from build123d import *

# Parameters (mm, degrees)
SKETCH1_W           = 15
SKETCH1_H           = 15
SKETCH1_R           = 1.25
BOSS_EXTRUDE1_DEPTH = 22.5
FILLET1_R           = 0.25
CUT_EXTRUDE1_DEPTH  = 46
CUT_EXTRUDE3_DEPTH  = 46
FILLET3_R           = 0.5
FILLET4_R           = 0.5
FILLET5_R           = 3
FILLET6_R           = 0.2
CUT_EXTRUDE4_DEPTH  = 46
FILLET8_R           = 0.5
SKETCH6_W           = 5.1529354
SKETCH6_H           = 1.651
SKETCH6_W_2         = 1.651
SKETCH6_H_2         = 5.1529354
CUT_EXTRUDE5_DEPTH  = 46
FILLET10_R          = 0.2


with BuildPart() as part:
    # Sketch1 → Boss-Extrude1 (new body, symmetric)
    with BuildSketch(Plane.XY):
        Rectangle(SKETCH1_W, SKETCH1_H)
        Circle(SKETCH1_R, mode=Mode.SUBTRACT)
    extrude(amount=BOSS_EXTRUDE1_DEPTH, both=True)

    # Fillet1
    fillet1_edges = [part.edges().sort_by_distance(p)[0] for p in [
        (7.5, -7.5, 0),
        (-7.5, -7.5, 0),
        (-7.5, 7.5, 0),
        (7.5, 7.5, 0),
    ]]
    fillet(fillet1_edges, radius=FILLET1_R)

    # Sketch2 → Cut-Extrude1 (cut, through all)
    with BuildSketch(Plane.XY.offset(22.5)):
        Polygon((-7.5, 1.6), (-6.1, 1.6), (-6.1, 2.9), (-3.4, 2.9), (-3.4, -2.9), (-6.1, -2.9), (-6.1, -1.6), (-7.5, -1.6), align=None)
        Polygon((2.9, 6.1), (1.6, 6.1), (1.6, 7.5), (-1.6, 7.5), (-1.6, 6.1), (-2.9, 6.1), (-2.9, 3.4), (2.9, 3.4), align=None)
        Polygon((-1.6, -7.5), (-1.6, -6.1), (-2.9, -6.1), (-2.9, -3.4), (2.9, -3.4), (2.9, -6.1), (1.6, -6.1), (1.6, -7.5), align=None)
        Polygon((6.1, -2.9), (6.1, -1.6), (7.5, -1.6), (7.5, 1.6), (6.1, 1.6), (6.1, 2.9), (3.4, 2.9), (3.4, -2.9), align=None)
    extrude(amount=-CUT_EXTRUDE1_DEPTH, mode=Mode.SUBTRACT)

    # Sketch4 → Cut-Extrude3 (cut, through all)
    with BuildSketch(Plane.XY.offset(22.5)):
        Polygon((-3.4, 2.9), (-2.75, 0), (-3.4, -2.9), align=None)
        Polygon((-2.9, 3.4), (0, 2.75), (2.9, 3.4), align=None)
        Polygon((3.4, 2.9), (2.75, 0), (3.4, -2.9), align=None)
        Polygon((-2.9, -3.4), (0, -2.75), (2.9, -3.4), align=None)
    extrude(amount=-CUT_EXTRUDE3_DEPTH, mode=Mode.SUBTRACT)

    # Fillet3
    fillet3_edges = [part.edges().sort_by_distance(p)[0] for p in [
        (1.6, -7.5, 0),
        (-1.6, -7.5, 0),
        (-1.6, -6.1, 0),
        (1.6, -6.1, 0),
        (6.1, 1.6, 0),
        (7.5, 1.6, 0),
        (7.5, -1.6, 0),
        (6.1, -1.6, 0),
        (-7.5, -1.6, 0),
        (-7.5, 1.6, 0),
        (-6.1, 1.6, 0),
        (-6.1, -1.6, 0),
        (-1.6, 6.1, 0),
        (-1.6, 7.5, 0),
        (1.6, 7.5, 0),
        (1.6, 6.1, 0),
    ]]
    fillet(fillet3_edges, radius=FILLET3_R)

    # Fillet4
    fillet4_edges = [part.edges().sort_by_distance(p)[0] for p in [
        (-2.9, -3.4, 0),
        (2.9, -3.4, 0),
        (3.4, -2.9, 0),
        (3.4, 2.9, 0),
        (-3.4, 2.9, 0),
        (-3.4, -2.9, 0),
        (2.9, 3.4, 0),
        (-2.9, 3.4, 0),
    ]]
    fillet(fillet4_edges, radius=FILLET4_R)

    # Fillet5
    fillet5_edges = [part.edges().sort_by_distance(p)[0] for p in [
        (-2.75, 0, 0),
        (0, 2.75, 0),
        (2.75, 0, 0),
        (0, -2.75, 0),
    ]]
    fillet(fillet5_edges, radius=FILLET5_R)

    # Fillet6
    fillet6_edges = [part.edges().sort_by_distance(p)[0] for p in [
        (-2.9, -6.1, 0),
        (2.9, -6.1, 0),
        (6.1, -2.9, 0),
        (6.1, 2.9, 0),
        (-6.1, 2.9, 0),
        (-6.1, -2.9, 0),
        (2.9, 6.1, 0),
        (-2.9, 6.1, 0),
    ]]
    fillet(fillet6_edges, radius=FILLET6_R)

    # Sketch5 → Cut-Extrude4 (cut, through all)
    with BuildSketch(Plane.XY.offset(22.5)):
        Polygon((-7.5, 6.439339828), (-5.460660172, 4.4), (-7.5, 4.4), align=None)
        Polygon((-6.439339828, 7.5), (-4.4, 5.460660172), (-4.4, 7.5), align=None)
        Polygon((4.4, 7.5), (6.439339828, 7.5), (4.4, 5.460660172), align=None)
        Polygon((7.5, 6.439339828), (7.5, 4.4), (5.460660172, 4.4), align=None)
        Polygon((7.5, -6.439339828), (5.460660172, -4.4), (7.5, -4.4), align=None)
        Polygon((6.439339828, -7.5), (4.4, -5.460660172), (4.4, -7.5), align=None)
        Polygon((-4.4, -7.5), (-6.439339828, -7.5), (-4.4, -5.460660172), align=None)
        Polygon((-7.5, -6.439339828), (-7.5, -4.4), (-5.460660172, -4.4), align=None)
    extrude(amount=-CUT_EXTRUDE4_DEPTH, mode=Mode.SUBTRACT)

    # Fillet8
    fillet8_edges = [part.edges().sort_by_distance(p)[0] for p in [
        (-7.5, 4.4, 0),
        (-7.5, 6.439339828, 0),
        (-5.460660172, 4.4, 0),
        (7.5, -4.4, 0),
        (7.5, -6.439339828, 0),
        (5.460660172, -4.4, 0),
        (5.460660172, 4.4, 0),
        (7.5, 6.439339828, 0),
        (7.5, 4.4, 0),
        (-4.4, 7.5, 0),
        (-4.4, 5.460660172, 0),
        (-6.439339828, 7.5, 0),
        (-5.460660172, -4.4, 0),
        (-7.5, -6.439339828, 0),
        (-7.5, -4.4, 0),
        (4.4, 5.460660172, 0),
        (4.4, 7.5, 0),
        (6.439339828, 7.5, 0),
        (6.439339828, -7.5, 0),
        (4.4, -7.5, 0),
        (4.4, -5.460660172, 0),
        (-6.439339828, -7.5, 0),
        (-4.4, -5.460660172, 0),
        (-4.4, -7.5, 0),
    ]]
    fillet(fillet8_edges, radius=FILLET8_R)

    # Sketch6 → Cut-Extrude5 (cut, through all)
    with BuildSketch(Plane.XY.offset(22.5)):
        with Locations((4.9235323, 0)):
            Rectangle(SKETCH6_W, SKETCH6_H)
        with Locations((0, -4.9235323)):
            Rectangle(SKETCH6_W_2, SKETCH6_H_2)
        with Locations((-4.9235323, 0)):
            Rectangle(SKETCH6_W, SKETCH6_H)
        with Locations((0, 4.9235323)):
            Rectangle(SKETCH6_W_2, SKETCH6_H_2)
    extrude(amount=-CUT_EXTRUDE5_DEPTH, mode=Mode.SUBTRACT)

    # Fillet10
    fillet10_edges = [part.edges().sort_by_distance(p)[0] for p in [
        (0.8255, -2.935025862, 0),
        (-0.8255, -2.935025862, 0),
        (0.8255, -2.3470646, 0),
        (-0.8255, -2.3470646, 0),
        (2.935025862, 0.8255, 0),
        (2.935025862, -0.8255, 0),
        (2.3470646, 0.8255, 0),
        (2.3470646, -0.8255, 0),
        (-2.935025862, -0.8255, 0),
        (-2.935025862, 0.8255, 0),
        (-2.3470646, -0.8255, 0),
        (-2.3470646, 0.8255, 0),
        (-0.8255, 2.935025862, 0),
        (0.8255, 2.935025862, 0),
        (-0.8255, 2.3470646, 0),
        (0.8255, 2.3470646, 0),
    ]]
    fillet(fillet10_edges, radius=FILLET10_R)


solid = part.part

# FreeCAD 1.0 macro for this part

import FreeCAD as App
import Part
import Sketcher
from FreeCAD import Vector


def edges_at(feature, points):
    """Names of the edges that pass closest to the given points."""
    edges = feature.Shape.Edges
    near = lambda p: min(range(len(edges)), key=lambda i: edges[i].distToShape(Part.Vertex(*p))[0])
    return sorted({f"Edge{near(p) + 1}" for p in points})

doc = App.newDocument("Part")
body = doc.addObject("PartDesign::Body", "Body")

sketch1 = body.newObject("Sketcher::SketchObject", "Sketch")
sketch1.AttachmentSupport = (doc.getObject("XY_Plane"), [""])
sketch1.MapMode = "FlatFace"
sketch1.addGeometry(Part.LineSegment(Vector(-7.5, 7.5, 0), Vector(-7.5, -7.5, 0)), False)
sketch1.addGeometry(Part.LineSegment(Vector(-7.5, -7.5, 0), Vector(7.5, -7.5, 0)), False)
sketch1.addGeometry(Part.LineSegment(Vector(7.5, -7.5, 0), Vector(7.5, 7.5, 0)), False)
sketch1.addGeometry(Part.LineSegment(Vector(7.5, 7.5, 0), Vector(-7.5, 7.5, 0)), False)
sketch1.addGeometry(Part.Circle(Vector(0, 0, 0), Vector(0, 0, 1), 1.2), False)
sketch1.addConstraint(Sketcher.Constraint("Coincident", 0, 2, 1, 1))
sketch1.addConstraint(Sketcher.Constraint("Coincident", 1, 2, 2, 1))
sketch1.addConstraint(Sketcher.Constraint("Coincident", 2, 2, 3, 1))
sketch1.addConstraint(Sketcher.Constraint("Coincident", 3, 2, 0, 1))
sketch1.addConstraint(Sketcher.Constraint("Vertical", 0))
sketch1.addConstraint(Sketcher.Constraint("Horizontal", 1))
sketch1.addConstraint(Sketcher.Constraint("Vertical", 2))
sketch1.addConstraint(Sketcher.Constraint("Horizontal", 3))
sketch1.addConstraint(Sketcher.Constraint("Coincident", 4, 3, -1, 1))
sketch1.addConstraint(Sketcher.Constraint("Symmetric", 0, 2, 2, 2, -1, 1))
sketch1.addConstraint(Sketcher.Constraint("Equal", 3, 0))
sketch1.addConstraint(Sketcher.Constraint("Diameter", 4, 2.5))
sketch1.addConstraint(Sketcher.Constraint("DistanceX", 1, 1, 1, 2, 15.0))
pad1 = body.newObject("PartDesign::Pad", "Pad")
pad1.Profile = sketch1
pad1.Length = 45
pad1.Midplane = True
doc.recompute()

fillet = body.newObject("PartDesign::Fillet", "Fillet")
fillet.Base = (pad1, edges_at(pad1, [
    (7.5, -7.5, 0),
    (-7.5, -7.5, 0),
    (-7.5, 7.5, 0),
    (7.5, 7.5, 0),
]))
fillet.Radius = 0.25

sketch2 = body.newObject("Sketcher::SketchObject", "Sketch001")
sketch2.AttachmentSupport = (doc.getObject("XY_Plane"), [""])
sketch2.MapMode = "FlatFace"
sketch2.AttachmentOffset = App.Placement(Vector(0, 0, 22.5), App.Rotation())
sketch2.addGeometry(Part.LineSegment(Vector(-6.1, 1.6, 0), Vector(-7.5, 1.6, 0)), False)
sketch2.addGeometry(Part.LineSegment(Vector(-7.5, 1.6, 0), Vector(-7.5, -1.6, 0)), False)
sketch2.addGeometry(Part.LineSegment(Vector(-7.5, -1.6, 0), Vector(-6.1, -1.6, 0)), False)
sketch2.addGeometry(Part.LineSegment(Vector(-6.1, -1.6, 0), Vector(-6.1, -2.9, 0)), False)
sketch2.addGeometry(Part.LineSegment(Vector(-6.1, -2.9, 0), Vector(-3.4, -2.9, 0)), False)
sketch2.addGeometry(Part.LineSegment(Vector(-3.4, -2.9, 0), Vector(-3.4, 2.9, 0)), False)
sketch2.addGeometry(Part.LineSegment(Vector(-3.4, 2.9, 0), Vector(-6.1, 2.9, 0)), False)
sketch2.addGeometry(Part.LineSegment(Vector(-6.1, 2.9, 0), Vector(-6.1, 1.6, 0)), False)
sketch2.addGeometry(Part.LineSegment(Vector(2.9, 6.1, 0), Vector(1.6, 6.1, 0)), False)
sketch2.addGeometry(Part.LineSegment(Vector(1.6, 6.1, 0), Vector(1.6, 7.5, 0)), False)
sketch2.addGeometry(Part.LineSegment(Vector(1.6, 7.5, 0), Vector(-1.6, 7.5, 0)), False)
sketch2.addGeometry(Part.LineSegment(Vector(-1.6, 7.5, 0), Vector(-1.6, 6.1, 0)), False)
sketch2.addGeometry(Part.LineSegment(Vector(-1.6, 6.1, 0), Vector(-2.9, 6.1, 0)), False)
sketch2.addGeometry(Part.LineSegment(Vector(-2.9, 6.1, 0), Vector(-2.9, 3.4, 0)), False)
sketch2.addGeometry(Part.LineSegment(Vector(-2.9, 3.4, 0), Vector(2.9, 3.4, 0)), False)
sketch2.addGeometry(Part.LineSegment(Vector(2.9, 3.4, 0), Vector(2.9, 6.1, 0)), False)
sketch2.addGeometry(Part.LineSegment(Vector(-1.6, -6.1, 0), Vector(-1.6, -7.5, 0)), False)
sketch2.addGeometry(Part.LineSegment(Vector(-1.6, -7.5, 0), Vector(1.6, -7.5, 0)), False)
sketch2.addGeometry(Part.LineSegment(Vector(1.6, -7.5, 0), Vector(1.6, -6.1, 0)), False)
sketch2.addGeometry(Part.LineSegment(Vector(1.6, -6.1, 0), Vector(2.9, -6.1, 0)), False)
sketch2.addGeometry(Part.LineSegment(Vector(2.9, -6.1, 0), Vector(2.9, -3.4, 0)), False)
sketch2.addGeometry(Part.LineSegment(Vector(2.9, -3.4, 0), Vector(-2.9, -3.4, 0)), False)
sketch2.addGeometry(Part.LineSegment(Vector(-2.9, -3.4, 0), Vector(-2.9, -6.1, 0)), False)
sketch2.addGeometry(Part.LineSegment(Vector(-2.9, -6.1, 0), Vector(-1.6, -6.1, 0)), False)
sketch2.addGeometry(Part.LineSegment(Vector(6.1, -2.9, 0), Vector(6.1, -1.6, 0)), False)
sketch2.addGeometry(Part.LineSegment(Vector(6.1, -1.6, 0), Vector(7.5, -1.6, 0)), False)
sketch2.addGeometry(Part.LineSegment(Vector(7.5, -1.6, 0), Vector(7.5, 1.6, 0)), False)
sketch2.addGeometry(Part.LineSegment(Vector(7.5, 1.6, 0), Vector(6.1, 1.6, 0)), False)
sketch2.addGeometry(Part.LineSegment(Vector(6.1, 1.6, 0), Vector(6.1, 2.9, 0)), False)
sketch2.addGeometry(Part.LineSegment(Vector(6.1, 2.9, 0), Vector(3.4, 2.9, 0)), False)
sketch2.addGeometry(Part.LineSegment(Vector(3.4, 2.9, 0), Vector(3.4, -2.9, 0)), False)
sketch2.addGeometry(Part.LineSegment(Vector(3.4, -2.9, 0), Vector(6.1, -2.9, 0)), False)
sketch2.addConstraint(Sketcher.Constraint("Coincident", 0, 2, 1, 1))
sketch2.addConstraint(Sketcher.Constraint("Coincident", 1, 2, 2, 1))
sketch2.addConstraint(Sketcher.Constraint("Coincident", 2, 2, 3, 1))
sketch2.addConstraint(Sketcher.Constraint("Coincident", 3, 2, 4, 1))
sketch2.addConstraint(Sketcher.Constraint("Coincident", 4, 2, 5, 1))
sketch2.addConstraint(Sketcher.Constraint("Coincident", 5, 2, 6, 1))
sketch2.addConstraint(Sketcher.Constraint("Coincident", 6, 2, 7, 1))
sketch2.addConstraint(Sketcher.Constraint("Coincident", 7, 2, 0, 1))
sketch2.addConstraint(Sketcher.Constraint("Coincident", 8, 2, 9, 1))
sketch2.addConstraint(Sketcher.Constraint("Coincident", 9, 2, 10, 1))
sketch2.addConstraint(Sketcher.Constraint("Coincident", 10, 2, 11, 1))
sketch2.addConstraint(Sketcher.Constraint("Coincident", 11, 2, 12, 1))
sketch2.addConstraint(Sketcher.Constraint("Coincident", 12, 2, 13, 1))
sketch2.addConstraint(Sketcher.Constraint("Coincident", 13, 2, 14, 1))
sketch2.addConstraint(Sketcher.Constraint("Coincident", 14, 2, 15, 1))
sketch2.addConstraint(Sketcher.Constraint("Coincident", 15, 2, 8, 1))
sketch2.addConstraint(Sketcher.Constraint("Coincident", 16, 2, 17, 1))
sketch2.addConstraint(Sketcher.Constraint("Coincident", 17, 2, 18, 1))
sketch2.addConstraint(Sketcher.Constraint("Coincident", 18, 2, 19, 1))
sketch2.addConstraint(Sketcher.Constraint("Coincident", 19, 2, 20, 1))
sketch2.addConstraint(Sketcher.Constraint("Coincident", 20, 2, 21, 1))
sketch2.addConstraint(Sketcher.Constraint("Coincident", 21, 2, 22, 1))
sketch2.addConstraint(Sketcher.Constraint("Coincident", 22, 2, 23, 1))
sketch2.addConstraint(Sketcher.Constraint("Coincident", 23, 2, 16, 1))
sketch2.addConstraint(Sketcher.Constraint("Coincident", 24, 2, 25, 1))
sketch2.addConstraint(Sketcher.Constraint("Coincident", 25, 2, 26, 1))
sketch2.addConstraint(Sketcher.Constraint("Coincident", 26, 2, 27, 1))
sketch2.addConstraint(Sketcher.Constraint("Coincident", 27, 2, 28, 1))
sketch2.addConstraint(Sketcher.Constraint("Coincident", 28, 2, 29, 1))
sketch2.addConstraint(Sketcher.Constraint("Coincident", 29, 2, 30, 1))
sketch2.addConstraint(Sketcher.Constraint("Coincident", 30, 2, 31, 1))
sketch2.addConstraint(Sketcher.Constraint("Coincident", 31, 2, 24, 1))
sketch2.addConstraint(Sketcher.Constraint("Horizontal", 0))
sketch2.addConstraint(Sketcher.Constraint("Vertical", 1))
sketch2.addConstraint(Sketcher.Constraint("Horizontal", 2))
sketch2.addConstraint(Sketcher.Constraint("Vertical", 3))
sketch2.addConstraint(Sketcher.Constraint("Horizontal", 4))
sketch2.addConstraint(Sketcher.Constraint("Vertical", 5))
sketch2.addConstraint(Sketcher.Constraint("Horizontal", 6))
sketch2.addConstraint(Sketcher.Constraint("Vertical", 7))
sketch2.addConstraint(Sketcher.Constraint("Horizontal", 8))
sketch2.addConstraint(Sketcher.Constraint("Vertical", 9))
sketch2.addConstraint(Sketcher.Constraint("Horizontal", 10))
sketch2.addConstraint(Sketcher.Constraint("Vertical", 11))
sketch2.addConstraint(Sketcher.Constraint("Horizontal", 12))
sketch2.addConstraint(Sketcher.Constraint("Vertical", 13))
sketch2.addConstraint(Sketcher.Constraint("Horizontal", 14))
sketch2.addConstraint(Sketcher.Constraint("Vertical", 15))
sketch2.addConstraint(Sketcher.Constraint("Vertical", 16))
sketch2.addConstraint(Sketcher.Constraint("Horizontal", 17))
sketch2.addConstraint(Sketcher.Constraint("Vertical", 18))
sketch2.addConstraint(Sketcher.Constraint("Horizontal", 19))
sketch2.addConstraint(Sketcher.Constraint("Vertical", 20))
sketch2.addConstraint(Sketcher.Constraint("Horizontal", 21))
sketch2.addConstraint(Sketcher.Constraint("Vertical", 22))
sketch2.addConstraint(Sketcher.Constraint("Horizontal", 23))
sketch2.addConstraint(Sketcher.Constraint("Vertical", 24))
sketch2.addConstraint(Sketcher.Constraint("Horizontal", 25))
sketch2.addConstraint(Sketcher.Constraint("Vertical", 26))
sketch2.addConstraint(Sketcher.Constraint("Horizontal", 27))
sketch2.addConstraint(Sketcher.Constraint("Vertical", 28))
sketch2.addConstraint(Sketcher.Constraint("Horizontal", 29))
sketch2.addConstraint(Sketcher.Constraint("Vertical", 30))
sketch2.addConstraint(Sketcher.Constraint("Horizontal", 31))
sketch2.addConstraint(Sketcher.Constraint("Symmetric", 9, 2, 16, 2, -1, 1))
sketch2.addConstraint(Sketcher.Constraint("Symmetric", 11, 2, 18, 2, -1, 1))
sketch2.addConstraint(Sketcher.Constraint("Symmetric", 13, 2, 20, 2, -1, 1))
sketch2.addConstraint(Sketcher.Constraint("Symmetric", 15, 2, 22, 2, -1, 1))
sketch2.addConstraint(Sketcher.Constraint("Symmetric", 7, 2, 24, 2, -1, 1))
sketch2.addConstraint(Sketcher.Constraint("Symmetric", 1, 2, 26, 2, -1, 1))
sketch2.addConstraint(Sketcher.Constraint("Symmetric", 3, 2, 28, 2, -1, 1))
sketch2.addConstraint(Sketcher.Constraint("Symmetric", 5, 2, 30, 2, -1, 1))
sketch2.addConstraint(Sketcher.Constraint("Symmetric", 8, 2, 11, 2, -2))
sketch2.addConstraint(Sketcher.Constraint("Symmetric", 2, 2, 24, 2, -2))
sketch2.addConstraint(Sketcher.Constraint("Horizontal", 6, 2, 28, 2))
sketch2.addConstraint(Sketcher.Constraint("Vertical", 15, 2, 19, 2))
sketch2.addConstraint(Sketcher.Constraint("Equal", 17, 1))
sketch2.addConstraint(Sketcher.Constraint("Equal", 23, 3))
sketch2.addConstraint(Sketcher.Constraint("Equal", 27, 9))
sketch2.addConstraint(Sketcher.Constraint("Equal", 31, 13))
sketch2.addConstraint(Sketcher.Constraint("DistanceX", 0, 2, 0, 1, 1.4))
sketch2.addConstraint(Sketcher.Constraint("DistanceX", 4, 1, 4, 2, 2.7))
sketch2.addConstraint(Sketcher.Constraint("DistanceX", 8, 2, 8, 1, 1.3))
sketch2.addConstraint(Sketcher.Constraint("DistanceX", 10, 2, 10, 1, 3.2))
sketch2.addConstraint(Sketcher.Constraint("DistanceX", 5, 2, 8, 2, 5.0))
sketch2.addConstraint(Sketcher.Constraint("DistanceY", 4, 2, 8, 2, 9.0))
pocket1 = body.newObject("PartDesign::Pocket", "Pocket")
pocket1.Profile = sketch2
pocket1.Type = "ThroughAll"

sketch3 = body.newObject("Sketcher::SketchObject", "Sketch002")
sketch3.AttachmentSupport = (doc.getObject("XY_Plane"), [""])
sketch3.MapMode = "FlatFace"
sketch3.AttachmentOffset = App.Placement(Vector(0, 0, 22.5), App.Rotation())
sketch3.addGeometry(Part.LineSegment(Vector(-2.8, 0, 0), Vector(-3.4, 2.9, 0)), False)
sketch3.addGeometry(Part.LineSegment(Vector(-3.4, 2.9, 0), Vector(-3.4, -2.9, 0)), False)
sketch3.addGeometry(Part.LineSegment(Vector(-3.4, -2.9, 0), Vector(-2.8, 0, 0)), False)
sketch3.addGeometry(Part.LineSegment(Vector(-2.9, 3.4, 0), Vector(0, 2.8, 0)), False)
sketch3.addGeometry(Part.LineSegment(Vector(0, 2.8, 0), Vector(2.9, 3.4, 0)), False)
sketch3.addGeometry(Part.LineSegment(Vector(2.9, 3.4, 0), Vector(-2.9, 3.4, 0)), False)
sketch3.addGeometry(Part.LineSegment(Vector(3.4, 2.9, 0), Vector(2.8, 0, 0)), False)
sketch3.addGeometry(Part.LineSegment(Vector(2.8, 0, 0), Vector(3.4, -2.9, 0)), False)
sketch3.addGeometry(Part.LineSegment(Vector(3.4, -2.9, 0), Vector(3.4, 2.9, 0)), False)
sketch3.addGeometry(Part.LineSegment(Vector(0, -2.8, 0), Vector(-2.9, -3.4, 0)), False)
sketch3.addGeometry(Part.LineSegment(Vector(-2.9, -3.4, 0), Vector(2.9, -3.4, 0)), False)
sketch3.addGeometry(Part.LineSegment(Vector(2.9, -3.4, 0), Vector(0, -2.8, 0)), False)
sketch3.addConstraint(Sketcher.Constraint("Coincident", 0, 2, 1, 1))
sketch3.addConstraint(Sketcher.Constraint("Coincident", 1, 2, 2, 1))
sketch3.addConstraint(Sketcher.Constraint("Coincident", 2, 2, 0, 1))
sketch3.addConstraint(Sketcher.Constraint("Coincident", 3, 2, 4, 1))
sketch3.addConstraint(Sketcher.Constraint("Coincident", 4, 2, 5, 1))
sketch3.addConstraint(Sketcher.Constraint("Coincident", 5, 2, 3, 1))
sketch3.addConstraint(Sketcher.Constraint("Coincident", 6, 2, 7, 1))
sketch3.addConstraint(Sketcher.Constraint("Coincident", 7, 2, 8, 1))
sketch3.addConstraint(Sketcher.Constraint("Coincident", 8, 2, 6, 1))
sketch3.addConstraint(Sketcher.Constraint("Coincident", 9, 2, 10, 1))
sketch3.addConstraint(Sketcher.Constraint("Coincident", 10, 2, 11, 1))
sketch3.addConstraint(Sketcher.Constraint("Coincident", 11, 2, 9, 1))
sketch3.addConstraint(Sketcher.Constraint("Vertical", 1))
sketch3.addConstraint(Sketcher.Constraint("Horizontal", 5))
sketch3.addConstraint(Sketcher.Constraint("Vertical", 8))
sketch3.addConstraint(Sketcher.Constraint("Horizontal", 10))
sketch3.addConstraint(Sketcher.Constraint("Symmetric", 2, 2, 6, 2, -1, 1))
sketch3.addConstraint(Sketcher.Constraint("Symmetric", 0, 2, 7, 2, -1, 1))
sketch3.addConstraint(Sketcher.Constraint("Symmetric", 4, 2, 9, 2, -1, 1))
sketch3.addConstraint(Sketcher.Constraint("Symmetric", 3, 2, 11, 2, -1, 1))
sketch3.addConstraint(Sketcher.Constraint("PointOnObject", 2, 2, -1))
sketch3.addConstraint(Sketcher.Constraint("PointOnObject", 3, 2, -2))
sketch3.addConstraint(Sketcher.Constraint("Perpendicular", 2, 3))
sketch3.addConstraint(Sketcher.Constraint("Perpendicular", 0, 4))
sketch3.addConstraint(Sketcher.Constraint("Perpendicular", 3, 6))
sketch3.addConstraint(Sketcher.Constraint("Perpendicular", 6, 11))
sketch3.addConstraint(Sketcher.Constraint("Horizontal", 1, 2, 7, 2))
sketch3.addConstraint(Sketcher.Constraint("Equal", 10, 1))
sketch3.addConstraint(Sketcher.Constraint("DistanceX", 5, 2, 5, 1, 5.8))
sketch3.addConstraint(Sketcher.Constraint("DistanceX", 0, 2, -1, 1, 3.4))
sketch3.addConstraint(Sketcher.Constraint("DistanceY", -1, 1, 4, 2, 3.4))
sketch3.addConstraint(Sketcher.Constraint("DistanceX", 2, 2, 6, 2, 5.5))
pocket2 = body.newObject("PartDesign::Pocket", "Pocket001")
pocket2.Profile = sketch3
pocket2.Type = "ThroughAll"
doc.recompute()

fillet2 = body.newObject("PartDesign::Fillet", "Fillet001")
fillet2.Base = (pocket2, edges_at(pocket2, [
    (1.6, -7.5, 0),
    (-1.6, -7.5, 0),
    (-1.6, -6.1, 0),
    (1.6, -6.1, 0),
    (6.1, 1.6, 0),
    (7.5, 1.6, 0),
    (7.5, -1.6, 0),
    (6.1, -1.6, 0),
    (-7.5, -1.6, 0),
    (-7.5, 1.6, 0),
    (-6.1, 1.6, 0),
    (-6.1, -1.6, 0),
    (-1.6, 6.1, 0),
    (-1.6, 7.5, 0),
    (1.6, 7.5, 0),
    (1.6, 6.1, 0),
]))
fillet2.Radius = 0.5
doc.recompute()

fillet3 = body.newObject("PartDesign::Fillet", "Fillet002")
fillet3.Base = (fillet2, edges_at(fillet2, [
    (-2.9, -3.4, 0),
    (2.9, -3.4, 0),
    (3.4, -2.9, 0),
    (3.4, 2.9, 0),
    (-3.4, 2.9, 0),
    (-3.4, -2.9, 0),
    (2.9, 3.4, 0),
    (-2.9, 3.4, 0),
]))
fillet3.Radius = 0.5
doc.recompute()

fillet4 = body.newObject("PartDesign::Fillet", "Fillet003")
fillet4.Base = (fillet3, edges_at(fillet3, [
    (-2.75, 0, 0),
    (0, 2.75, 0),
    (2.75, 0, 0),
    (0, -2.75, 0),
]))
fillet4.Radius = 3
doc.recompute()

fillet5 = body.newObject("PartDesign::Fillet", "Fillet004")
fillet5.Base = (fillet4, edges_at(fillet4, [
    (-2.9, -6.1, 0),
    (2.9, -6.1, 0),
    (6.1, -2.9, 0),
    (6.1, 2.9, 0),
    (-6.1, 2.9, 0),
    (-6.1, -2.9, 0),
    (2.9, 6.1, 0),
    (-2.9, 6.1, 0),
]))
fillet5.Radius = 0.2

sketch4 = body.newObject("Sketcher::SketchObject", "Sketch003")
sketch4.AttachmentSupport = (doc.getObject("XY_Plane"), [""])
sketch4.MapMode = "FlatFace"
sketch4.AttachmentOffset = App.Placement(Vector(0, 0, 22.5), App.Rotation())
sketch4.addGeometry(Part.LineSegment(Vector(-5.5, 4.4, 0), Vector(-7.5, 6.4, 0)), False)
sketch4.addGeometry(Part.LineSegment(Vector(-7.5, 6.4, 0), Vector(-7.5, 4.4, 0)), False)
sketch4.addGeometry(Part.LineSegment(Vector(-7.5, 4.4, 0), Vector(-5.5, 4.4, 0)), False)
sketch4.addGeometry(Part.LineSegment(Vector(-6.4, 7.5, 0), Vector(-4.4, 5.5, 0)), False)
sketch4.addGeometry(Part.LineSegment(Vector(-4.4, 5.5, 0), Vector(-4.4, 7.5, 0)), False)
sketch4.addGeometry(Part.LineSegment(Vector(-4.4, 7.5, 0), Vector(-6.4, 7.5, 0)), False)
sketch4.addGeometry(Part.LineSegment(Vector(6.4, 7.5, 0), Vector(4.4, 7.5, 0)), False)
sketch4.addGeometry(Part.LineSegment(Vector(4.4, 7.5, 0), Vector(4.4, 5.5, 0)), False)
sketch4.addGeometry(Part.LineSegment(Vector(4.4, 5.5, 0), Vector(6.4, 7.5, 0)), False)
sketch4.addGeometry(Part.LineSegment(Vector(7.5, 4.4, 0), Vector(7.5, 6.4, 0)), False)
sketch4.addGeometry(Part.LineSegment(Vector(7.5, 6.4, 0), Vector(5.5, 4.4, 0)), False)
sketch4.addGeometry(Part.LineSegment(Vector(5.5, 4.4, 0), Vector(7.5, 4.4, 0)), False)
sketch4.addGeometry(Part.LineSegment(Vector(5.5, -4.4, 0), Vector(7.5, -6.4, 0)), False)
sketch4.addGeometry(Part.LineSegment(Vector(7.5, -6.4, 0), Vector(7.5, -4.4, 0)), False)
sketch4.addGeometry(Part.LineSegment(Vector(7.5, -4.4, 0), Vector(5.5, -4.4, 0)), False)
sketch4.addGeometry(Part.LineSegment(Vector(6.4, -7.5, 0), Vector(4.4, -5.5, 0)), False)
sketch4.addGeometry(Part.LineSegment(Vector(4.4, -5.5, 0), Vector(4.4, -7.5, 0)), False)
sketch4.addGeometry(Part.LineSegment(Vector(4.4, -7.5, 0), Vector(6.4, -7.5, 0)), False)
sketch4.addGeometry(Part.LineSegment(Vector(-6.4, -7.5, 0), Vector(-4.4, -7.5, 0)), False)
sketch4.addGeometry(Part.LineSegment(Vector(-4.4, -7.5, 0), Vector(-4.4, -5.5, 0)), False)
sketch4.addGeometry(Part.LineSegment(Vector(-4.4, -5.5, 0), Vector(-6.4, -7.5, 0)), False)
sketch4.addGeometry(Part.LineSegment(Vector(-7.5, -4.4, 0), Vector(-7.5, -6.4, 0)), False)
sketch4.addGeometry(Part.LineSegment(Vector(-7.5, -6.4, 0), Vector(-5.5, -4.4, 0)), False)
sketch4.addGeometry(Part.LineSegment(Vector(-5.5, -4.4, 0), Vector(-7.5, -4.4, 0)), False)
sketch4.addConstraint(Sketcher.Constraint("Coincident", 0, 2, 1, 1))
sketch4.addConstraint(Sketcher.Constraint("Coincident", 1, 2, 2, 1))
sketch4.addConstraint(Sketcher.Constraint("Coincident", 2, 2, 0, 1))
sketch4.addConstraint(Sketcher.Constraint("Coincident", 3, 2, 4, 1))
sketch4.addConstraint(Sketcher.Constraint("Coincident", 4, 2, 5, 1))
sketch4.addConstraint(Sketcher.Constraint("Coincident", 5, 2, 3, 1))
sketch4.addConstraint(Sketcher.Constraint("Coincident", 6, 2, 7, 1))
sketch4.addConstraint(Sketcher.Constraint("Coincident", 7, 2, 8, 1))
sketch4.addConstraint(Sketcher.Constraint("Coincident", 8, 2, 6, 1))
sketch4.addConstraint(Sketcher.Constraint("Coincident", 9, 2, 10, 1))
sketch4.addConstraint(Sketcher.Constraint("Coincident", 10, 2, 11, 1))
sketch4.addConstraint(Sketcher.Constraint("Coincident", 11, 2, 9, 1))
sketch4.addConstraint(Sketcher.Constraint("Coincident", 12, 2, 13, 1))
sketch4.addConstraint(Sketcher.Constraint("Coincident", 13, 2, 14, 1))
sketch4.addConstraint(Sketcher.Constraint("Coincident", 14, 2, 12, 1))
sketch4.addConstraint(Sketcher.Constraint("Coincident", 15, 2, 16, 1))
sketch4.addConstraint(Sketcher.Constraint("Coincident", 16, 2, 17, 1))
sketch4.addConstraint(Sketcher.Constraint("Coincident", 17, 2, 15, 1))
sketch4.addConstraint(Sketcher.Constraint("Coincident", 18, 2, 19, 1))
sketch4.addConstraint(Sketcher.Constraint("Coincident", 19, 2, 20, 1))
sketch4.addConstraint(Sketcher.Constraint("Coincident", 20, 2, 18, 1))
sketch4.addConstraint(Sketcher.Constraint("Coincident", 21, 2, 22, 1))
sketch4.addConstraint(Sketcher.Constraint("Coincident", 22, 2, 23, 1))
sketch4.addConstraint(Sketcher.Constraint("Coincident", 23, 2, 21, 1))
sketch4.addConstraint(Sketcher.Constraint("Vertical", 1))
sketch4.addConstraint(Sketcher.Constraint("Horizontal", 2))
sketch4.addConstraint(Sketcher.Constraint("Vertical", 4))
sketch4.addConstraint(Sketcher.Constraint("Horizontal", 5))
sketch4.addConstraint(Sketcher.Constraint("Horizontal", 6))
sketch4.addConstraint(Sketcher.Constraint("Vertical", 7))
sketch4.addConstraint(Sketcher.Constraint("Vertical", 9))
sketch4.addConstraint(Sketcher.Constraint("Horizontal", 11))
sketch4.addConstraint(Sketcher.Constraint("Vertical", 13))
sketch4.addConstraint(Sketcher.Constraint("Horizontal", 14))
sketch4.addConstraint(Sketcher.Constraint("Vertical", 16))
sketch4.addConstraint(Sketcher.Constraint("Horizontal", 17))
sketch4.addConstraint(Sketcher.Constraint("Horizontal", 18))
sketch4.addConstraint(Sketcher.Constraint("Vertical", 19))
sketch4.addConstraint(Sketcher.Constraint("Vertical", 21))
sketch4.addConstraint(Sketcher.Constraint("Horizontal", 23))
sketch4.addConstraint(Sketcher.Constraint("Symmetric", 0, 2, 12, 2, -1, 1))
sketch4.addConstraint(Sketcher.Constraint("Symmetric", 2, 2, 14, 2, -1, 1))
sketch4.addConstraint(Sketcher.Constraint("Symmetric", 3, 2, 15, 2, -1, 1))
sketch4.addConstraint(Sketcher.Constraint("Symmetric", 5, 2, 17, 2, -1, 1))
sketch4.addConstraint(Sketcher.Constraint("Symmetric", 6, 2, 18, 2, -1, 1))
sketch4.addConstraint(Sketcher.Constraint("Symmetric", 9, 2, 21, 2, -1, 1))
sketch4.addConstraint(Sketcher.Constraint("Symmetric", 10, 2, 22, 2, -1, 1))
sketch4.addConstraint(Sketcher.Constraint("Symmetric", 4, 2, 6, 2, -2))
sketch4.addConstraint(Sketcher.Constraint("Symmetric", 0, 2, 9, 2, -2))
sketch4.addConstraint(Sketcher.Constraint("Symmetric", 2, 2, 10, 2, -2))
sketch4.addConstraint(Sketcher.Constraint("Parallel", 0, 3))
sketch4.addConstraint(Sketcher.Constraint("Perpendicular", 3, 8))
sketch4.addConstraint(Sketcher.Constraint("Parallel", 8, 10))
sketch4.addConstraint(Sketcher.Constraint("Perpendicular", 15, 20))
sketch4.addConstraint(Sketcher.Constraint("Horizontal", 3, 2, 7, 2))
sketch4.addConstraint(Sketcher.Constraint("Horizontal", 15, 2, 19, 2))
sketch4.addConstraint(Sketcher.Constraint("Equal", 2, 5))
sketch4.addConstraint(Sketcher.Constraint("DistanceX", 0, 2, -1, 1, 7.5))
sketch4.addConstraint(Sketcher.Constraint("DistanceY", -1, 1, 1, 2, 4.4))
sketch4.addConstraint(Sketcher.Constraint("DistanceX", 3, 2, -1, 1, 4.4))
sketch4.addConstraint(Sketcher.Constraint("DistanceY", -1, 1, 4, 2, 7.5))
sketch4.addConstraint(Sketcher.Constraint("DistanceX", 2, 1, 2, 2, 2.03934))
pocket3 = body.newObject("PartDesign::Pocket", "Pocket002")
pocket3.Profile = sketch4
pocket3.Type = "ThroughAll"
doc.recompute()

fillet6 = body.newObject("PartDesign::Fillet", "Fillet005")
fillet6.Base = (pocket3, edges_at(pocket3, [
    (-7.5, 4.4, 0),
    (-7.5, 6.439, 0),
    (-5.461, 4.4, 0),
    (7.5, -4.4, 0),
    (7.5, -6.439, 0),
    (5.461, -4.4, 0),
    (5.461, 4.4, 0),
    (7.5, 6.439, 0),
    (7.5, 4.4, 0),
    (-4.4, 7.5, 0),
    (-4.4, 5.461, 0),
    (-6.439, 7.5, 0),
    (-5.461, -4.4, 0),
    (-7.5, -6.439, 0),
    (-7.5, -4.4, 0),
    (4.4, 5.461, 0),
    (4.4, 7.5, 0),
    (6.439, 7.5, 0),
    (6.439, -7.5, 0),
    (4.4, -7.5, 0),
    (4.4, -5.461, 0),
    (-6.439, -7.5, 0),
    (-4.4, -5.461, 0),
    (-4.4, -7.5, 0),
]))
fillet6.Radius = 0.5

sketch5 = body.newObject("Sketcher::SketchObject", "Sketch004")
sketch5.AttachmentSupport = (doc.getObject("XY_Plane"), [""])
sketch5.MapMode = "FlatFace"
sketch5.AttachmentOffset = App.Placement(Vector(0, 0, 22.5), App.Rotation())
sketch5.addGeometry(Part.LineSegment(Vector(2.3, 0.8, 0), Vector(2.3, -0.8, 0)), False)
sketch5.addGeometry(Part.LineSegment(Vector(2.3, -0.8, 0), Vector(7.5, -0.8, 0)), False)
sketch5.addGeometry(Part.LineSegment(Vector(7.5, -0.8, 0), Vector(7.5, 0.8, 0)), False)
sketch5.addGeometry(Part.LineSegment(Vector(7.5, 0.8, 0), Vector(2.3, 0.8, 0)), False)
sketch5.addGeometry(Part.LineSegment(Vector(-0.8, -2.3, 0), Vector(-0.8, -7.5, 0)), False)
sketch5.addGeometry(Part.LineSegment(Vector(-0.8, -7.5, 0), Vector(0.8, -7.5, 0)), False)
sketch5.addGeometry(Part.LineSegment(Vector(0.8, -7.5, 0), Vector(0.8, -2.3, 0)), False)
sketch5.addGeometry(Part.LineSegment(Vector(0.8, -2.3, 0), Vector(-0.8, -2.3, 0)), False)
sketch5.addGeometry(Part.LineSegment(Vector(-7.5, 0.8, 0), Vector(-7.5, -0.8, 0)), False)
sketch5.addGeometry(Part.LineSegment(Vector(-7.5, -0.8, 0), Vector(-2.3, -0.8, 0)), False)
sketch5.addGeometry(Part.LineSegment(Vector(-2.3, -0.8, 0), Vector(-2.3, 0.8, 0)), False)
sketch5.addGeometry(Part.LineSegment(Vector(-2.3, 0.8, 0), Vector(-7.5, 0.8, 0)), False)
sketch5.addGeometry(Part.LineSegment(Vector(-0.8, 7.5, 0), Vector(-0.8, 2.3, 0)), False)
sketch5.addGeometry(Part.LineSegment(Vector(-0.8, 2.3, 0), Vector(0.8, 2.3, 0)), False)
sketch5.addGeometry(Part.LineSegment(Vector(0.8, 2.3, 0), Vector(0.8, 7.5, 0)), False)
sketch5.addGeometry(Part.LineSegment(Vector(0.8, 7.5, 0), Vector(-0.8, 7.5, 0)), False)
sketch5.addConstraint(Sketcher.Constraint("Coincident", 0, 2, 1, 1))
sketch5.addConstraint(Sketcher.Constraint("Coincident", 1, 2, 2, 1))
sketch5.addConstraint(Sketcher.Constraint("Coincident", 2, 2, 3, 1))
sketch5.addConstraint(Sketcher.Constraint("Coincident", 3, 2, 0, 1))
sketch5.addConstraint(Sketcher.Constraint("Coincident", 4, 2, 5, 1))
sketch5.addConstraint(Sketcher.Constraint("Coincident", 5, 2, 6, 1))
sketch5.addConstraint(Sketcher.Constraint("Coincident", 6, 2, 7, 1))
sketch5.addConstraint(Sketcher.Constraint("Coincident", 7, 2, 4, 1))
sketch5.addConstraint(Sketcher.Constraint("Coincident", 8, 2, 9, 1))
sketch5.addConstraint(Sketcher.Constraint("Coincident", 9, 2, 10, 1))
sketch5.addConstraint(Sketcher.Constraint("Coincident", 10, 2, 11, 1))
sketch5.addConstraint(Sketcher.Constraint("Coincident", 11, 2, 8, 1))
sketch5.addConstraint(Sketcher.Constraint("Coincident", 12, 2, 13, 1))
sketch5.addConstraint(Sketcher.Constraint("Coincident", 13, 2, 14, 1))
sketch5.addConstraint(Sketcher.Constraint("Coincident", 14, 2, 15, 1))
sketch5.addConstraint(Sketcher.Constraint("Coincident", 15, 2, 12, 1))
sketch5.addConstraint(Sketcher.Constraint("Vertical", 0))
sketch5.addConstraint(Sketcher.Constraint("Horizontal", 1))
sketch5.addConstraint(Sketcher.Constraint("Vertical", 2))
sketch5.addConstraint(Sketcher.Constraint("Horizontal", 3))
sketch5.addConstraint(Sketcher.Constraint("Vertical", 4))
sketch5.addConstraint(Sketcher.Constraint("Horizontal", 5))
sketch5.addConstraint(Sketcher.Constraint("Vertical", 6))
sketch5.addConstraint(Sketcher.Constraint("Horizontal", 7))
sketch5.addConstraint(Sketcher.Constraint("Vertical", 8))
sketch5.addConstraint(Sketcher.Constraint("Horizontal", 9))
sketch5.addConstraint(Sketcher.Constraint("Vertical", 10))
sketch5.addConstraint(Sketcher.Constraint("Horizontal", 11))
sketch5.addConstraint(Sketcher.Constraint("Vertical", 12))
sketch5.addConstraint(Sketcher.Constraint("Horizontal", 13))
sketch5.addConstraint(Sketcher.Constraint("Vertical", 14))
sketch5.addConstraint(Sketcher.Constraint("Horizontal", 15))
sketch5.addConstraint(Sketcher.Constraint("Symmetric", 2, 2, 8, 2, -1, 1))
sketch5.addConstraint(Sketcher.Constraint("Symmetric", 0, 2, 10, 2, -1, 1))
sketch5.addConstraint(Sketcher.Constraint("Symmetric", 6, 2, 12, 2, -1, 1))
sketch5.addConstraint(Sketcher.Constraint("Symmetric", 4, 2, 14, 2, -1, 1))
sketch5.addConstraint(Sketcher.Constraint("Horizontal", 1, 2, 8, 2))
sketch5.addConstraint(Sketcher.Constraint("Vertical", 7, 2, 12, 2))
sketch5.addConstraint(Sketcher.Constraint("Equal", 15, 0))
sketch5.addConstraint(Sketcher.Constraint("Equal", 11, 4))
sketch5.addConstraint(Sketcher.Constraint("DistanceX", -1, 1, 1, 2, 7.5))
sketch5.addConstraint(Sketcher.Constraint("DistanceY", 4, 2, -1, 1, 7.5))
sketch5.addConstraint(Sketcher.Constraint("DistanceX", 5, 1, 5, 2, 1.651))
sketch5.addConstraint(Sketcher.Constraint("DistanceX", 1, 1, 1, 2, 5.152935))
pocket4 = body.newObject("PartDesign::Pocket", "Pocket003")
pocket4.Profile = sketch5
pocket4.Type = "ThroughAll"
doc.recompute()

fillet7 = body.newObject("PartDesign::Fillet", "Fillet006")
fillet7.Base = (pocket4, edges_at(pocket4, [
    (0.826, -2.935, 0),
    (-0.826, -2.935, 0),
    (0.826, -2.347, 0),
    (-0.826, -2.347, 0),
    (2.935, 0.826, 0),
    (2.935, -0.826, 0),
    (2.347, 0.826, 0),
    (2.347, -0.826, 0),
    (-2.935, -0.826, 0),
    (-2.935, 0.826, 0),
    (-2.347, -0.826, 0),
    (-2.347, 0.826, 0),
    (-0.826, 2.935, 0),
    (0.826, 2.935, 0),
    (-0.826, 2.347, 0),
    (0.826, 2.347, 0),
]))
fillet7.Radius = 0.2

doc.recompute()
